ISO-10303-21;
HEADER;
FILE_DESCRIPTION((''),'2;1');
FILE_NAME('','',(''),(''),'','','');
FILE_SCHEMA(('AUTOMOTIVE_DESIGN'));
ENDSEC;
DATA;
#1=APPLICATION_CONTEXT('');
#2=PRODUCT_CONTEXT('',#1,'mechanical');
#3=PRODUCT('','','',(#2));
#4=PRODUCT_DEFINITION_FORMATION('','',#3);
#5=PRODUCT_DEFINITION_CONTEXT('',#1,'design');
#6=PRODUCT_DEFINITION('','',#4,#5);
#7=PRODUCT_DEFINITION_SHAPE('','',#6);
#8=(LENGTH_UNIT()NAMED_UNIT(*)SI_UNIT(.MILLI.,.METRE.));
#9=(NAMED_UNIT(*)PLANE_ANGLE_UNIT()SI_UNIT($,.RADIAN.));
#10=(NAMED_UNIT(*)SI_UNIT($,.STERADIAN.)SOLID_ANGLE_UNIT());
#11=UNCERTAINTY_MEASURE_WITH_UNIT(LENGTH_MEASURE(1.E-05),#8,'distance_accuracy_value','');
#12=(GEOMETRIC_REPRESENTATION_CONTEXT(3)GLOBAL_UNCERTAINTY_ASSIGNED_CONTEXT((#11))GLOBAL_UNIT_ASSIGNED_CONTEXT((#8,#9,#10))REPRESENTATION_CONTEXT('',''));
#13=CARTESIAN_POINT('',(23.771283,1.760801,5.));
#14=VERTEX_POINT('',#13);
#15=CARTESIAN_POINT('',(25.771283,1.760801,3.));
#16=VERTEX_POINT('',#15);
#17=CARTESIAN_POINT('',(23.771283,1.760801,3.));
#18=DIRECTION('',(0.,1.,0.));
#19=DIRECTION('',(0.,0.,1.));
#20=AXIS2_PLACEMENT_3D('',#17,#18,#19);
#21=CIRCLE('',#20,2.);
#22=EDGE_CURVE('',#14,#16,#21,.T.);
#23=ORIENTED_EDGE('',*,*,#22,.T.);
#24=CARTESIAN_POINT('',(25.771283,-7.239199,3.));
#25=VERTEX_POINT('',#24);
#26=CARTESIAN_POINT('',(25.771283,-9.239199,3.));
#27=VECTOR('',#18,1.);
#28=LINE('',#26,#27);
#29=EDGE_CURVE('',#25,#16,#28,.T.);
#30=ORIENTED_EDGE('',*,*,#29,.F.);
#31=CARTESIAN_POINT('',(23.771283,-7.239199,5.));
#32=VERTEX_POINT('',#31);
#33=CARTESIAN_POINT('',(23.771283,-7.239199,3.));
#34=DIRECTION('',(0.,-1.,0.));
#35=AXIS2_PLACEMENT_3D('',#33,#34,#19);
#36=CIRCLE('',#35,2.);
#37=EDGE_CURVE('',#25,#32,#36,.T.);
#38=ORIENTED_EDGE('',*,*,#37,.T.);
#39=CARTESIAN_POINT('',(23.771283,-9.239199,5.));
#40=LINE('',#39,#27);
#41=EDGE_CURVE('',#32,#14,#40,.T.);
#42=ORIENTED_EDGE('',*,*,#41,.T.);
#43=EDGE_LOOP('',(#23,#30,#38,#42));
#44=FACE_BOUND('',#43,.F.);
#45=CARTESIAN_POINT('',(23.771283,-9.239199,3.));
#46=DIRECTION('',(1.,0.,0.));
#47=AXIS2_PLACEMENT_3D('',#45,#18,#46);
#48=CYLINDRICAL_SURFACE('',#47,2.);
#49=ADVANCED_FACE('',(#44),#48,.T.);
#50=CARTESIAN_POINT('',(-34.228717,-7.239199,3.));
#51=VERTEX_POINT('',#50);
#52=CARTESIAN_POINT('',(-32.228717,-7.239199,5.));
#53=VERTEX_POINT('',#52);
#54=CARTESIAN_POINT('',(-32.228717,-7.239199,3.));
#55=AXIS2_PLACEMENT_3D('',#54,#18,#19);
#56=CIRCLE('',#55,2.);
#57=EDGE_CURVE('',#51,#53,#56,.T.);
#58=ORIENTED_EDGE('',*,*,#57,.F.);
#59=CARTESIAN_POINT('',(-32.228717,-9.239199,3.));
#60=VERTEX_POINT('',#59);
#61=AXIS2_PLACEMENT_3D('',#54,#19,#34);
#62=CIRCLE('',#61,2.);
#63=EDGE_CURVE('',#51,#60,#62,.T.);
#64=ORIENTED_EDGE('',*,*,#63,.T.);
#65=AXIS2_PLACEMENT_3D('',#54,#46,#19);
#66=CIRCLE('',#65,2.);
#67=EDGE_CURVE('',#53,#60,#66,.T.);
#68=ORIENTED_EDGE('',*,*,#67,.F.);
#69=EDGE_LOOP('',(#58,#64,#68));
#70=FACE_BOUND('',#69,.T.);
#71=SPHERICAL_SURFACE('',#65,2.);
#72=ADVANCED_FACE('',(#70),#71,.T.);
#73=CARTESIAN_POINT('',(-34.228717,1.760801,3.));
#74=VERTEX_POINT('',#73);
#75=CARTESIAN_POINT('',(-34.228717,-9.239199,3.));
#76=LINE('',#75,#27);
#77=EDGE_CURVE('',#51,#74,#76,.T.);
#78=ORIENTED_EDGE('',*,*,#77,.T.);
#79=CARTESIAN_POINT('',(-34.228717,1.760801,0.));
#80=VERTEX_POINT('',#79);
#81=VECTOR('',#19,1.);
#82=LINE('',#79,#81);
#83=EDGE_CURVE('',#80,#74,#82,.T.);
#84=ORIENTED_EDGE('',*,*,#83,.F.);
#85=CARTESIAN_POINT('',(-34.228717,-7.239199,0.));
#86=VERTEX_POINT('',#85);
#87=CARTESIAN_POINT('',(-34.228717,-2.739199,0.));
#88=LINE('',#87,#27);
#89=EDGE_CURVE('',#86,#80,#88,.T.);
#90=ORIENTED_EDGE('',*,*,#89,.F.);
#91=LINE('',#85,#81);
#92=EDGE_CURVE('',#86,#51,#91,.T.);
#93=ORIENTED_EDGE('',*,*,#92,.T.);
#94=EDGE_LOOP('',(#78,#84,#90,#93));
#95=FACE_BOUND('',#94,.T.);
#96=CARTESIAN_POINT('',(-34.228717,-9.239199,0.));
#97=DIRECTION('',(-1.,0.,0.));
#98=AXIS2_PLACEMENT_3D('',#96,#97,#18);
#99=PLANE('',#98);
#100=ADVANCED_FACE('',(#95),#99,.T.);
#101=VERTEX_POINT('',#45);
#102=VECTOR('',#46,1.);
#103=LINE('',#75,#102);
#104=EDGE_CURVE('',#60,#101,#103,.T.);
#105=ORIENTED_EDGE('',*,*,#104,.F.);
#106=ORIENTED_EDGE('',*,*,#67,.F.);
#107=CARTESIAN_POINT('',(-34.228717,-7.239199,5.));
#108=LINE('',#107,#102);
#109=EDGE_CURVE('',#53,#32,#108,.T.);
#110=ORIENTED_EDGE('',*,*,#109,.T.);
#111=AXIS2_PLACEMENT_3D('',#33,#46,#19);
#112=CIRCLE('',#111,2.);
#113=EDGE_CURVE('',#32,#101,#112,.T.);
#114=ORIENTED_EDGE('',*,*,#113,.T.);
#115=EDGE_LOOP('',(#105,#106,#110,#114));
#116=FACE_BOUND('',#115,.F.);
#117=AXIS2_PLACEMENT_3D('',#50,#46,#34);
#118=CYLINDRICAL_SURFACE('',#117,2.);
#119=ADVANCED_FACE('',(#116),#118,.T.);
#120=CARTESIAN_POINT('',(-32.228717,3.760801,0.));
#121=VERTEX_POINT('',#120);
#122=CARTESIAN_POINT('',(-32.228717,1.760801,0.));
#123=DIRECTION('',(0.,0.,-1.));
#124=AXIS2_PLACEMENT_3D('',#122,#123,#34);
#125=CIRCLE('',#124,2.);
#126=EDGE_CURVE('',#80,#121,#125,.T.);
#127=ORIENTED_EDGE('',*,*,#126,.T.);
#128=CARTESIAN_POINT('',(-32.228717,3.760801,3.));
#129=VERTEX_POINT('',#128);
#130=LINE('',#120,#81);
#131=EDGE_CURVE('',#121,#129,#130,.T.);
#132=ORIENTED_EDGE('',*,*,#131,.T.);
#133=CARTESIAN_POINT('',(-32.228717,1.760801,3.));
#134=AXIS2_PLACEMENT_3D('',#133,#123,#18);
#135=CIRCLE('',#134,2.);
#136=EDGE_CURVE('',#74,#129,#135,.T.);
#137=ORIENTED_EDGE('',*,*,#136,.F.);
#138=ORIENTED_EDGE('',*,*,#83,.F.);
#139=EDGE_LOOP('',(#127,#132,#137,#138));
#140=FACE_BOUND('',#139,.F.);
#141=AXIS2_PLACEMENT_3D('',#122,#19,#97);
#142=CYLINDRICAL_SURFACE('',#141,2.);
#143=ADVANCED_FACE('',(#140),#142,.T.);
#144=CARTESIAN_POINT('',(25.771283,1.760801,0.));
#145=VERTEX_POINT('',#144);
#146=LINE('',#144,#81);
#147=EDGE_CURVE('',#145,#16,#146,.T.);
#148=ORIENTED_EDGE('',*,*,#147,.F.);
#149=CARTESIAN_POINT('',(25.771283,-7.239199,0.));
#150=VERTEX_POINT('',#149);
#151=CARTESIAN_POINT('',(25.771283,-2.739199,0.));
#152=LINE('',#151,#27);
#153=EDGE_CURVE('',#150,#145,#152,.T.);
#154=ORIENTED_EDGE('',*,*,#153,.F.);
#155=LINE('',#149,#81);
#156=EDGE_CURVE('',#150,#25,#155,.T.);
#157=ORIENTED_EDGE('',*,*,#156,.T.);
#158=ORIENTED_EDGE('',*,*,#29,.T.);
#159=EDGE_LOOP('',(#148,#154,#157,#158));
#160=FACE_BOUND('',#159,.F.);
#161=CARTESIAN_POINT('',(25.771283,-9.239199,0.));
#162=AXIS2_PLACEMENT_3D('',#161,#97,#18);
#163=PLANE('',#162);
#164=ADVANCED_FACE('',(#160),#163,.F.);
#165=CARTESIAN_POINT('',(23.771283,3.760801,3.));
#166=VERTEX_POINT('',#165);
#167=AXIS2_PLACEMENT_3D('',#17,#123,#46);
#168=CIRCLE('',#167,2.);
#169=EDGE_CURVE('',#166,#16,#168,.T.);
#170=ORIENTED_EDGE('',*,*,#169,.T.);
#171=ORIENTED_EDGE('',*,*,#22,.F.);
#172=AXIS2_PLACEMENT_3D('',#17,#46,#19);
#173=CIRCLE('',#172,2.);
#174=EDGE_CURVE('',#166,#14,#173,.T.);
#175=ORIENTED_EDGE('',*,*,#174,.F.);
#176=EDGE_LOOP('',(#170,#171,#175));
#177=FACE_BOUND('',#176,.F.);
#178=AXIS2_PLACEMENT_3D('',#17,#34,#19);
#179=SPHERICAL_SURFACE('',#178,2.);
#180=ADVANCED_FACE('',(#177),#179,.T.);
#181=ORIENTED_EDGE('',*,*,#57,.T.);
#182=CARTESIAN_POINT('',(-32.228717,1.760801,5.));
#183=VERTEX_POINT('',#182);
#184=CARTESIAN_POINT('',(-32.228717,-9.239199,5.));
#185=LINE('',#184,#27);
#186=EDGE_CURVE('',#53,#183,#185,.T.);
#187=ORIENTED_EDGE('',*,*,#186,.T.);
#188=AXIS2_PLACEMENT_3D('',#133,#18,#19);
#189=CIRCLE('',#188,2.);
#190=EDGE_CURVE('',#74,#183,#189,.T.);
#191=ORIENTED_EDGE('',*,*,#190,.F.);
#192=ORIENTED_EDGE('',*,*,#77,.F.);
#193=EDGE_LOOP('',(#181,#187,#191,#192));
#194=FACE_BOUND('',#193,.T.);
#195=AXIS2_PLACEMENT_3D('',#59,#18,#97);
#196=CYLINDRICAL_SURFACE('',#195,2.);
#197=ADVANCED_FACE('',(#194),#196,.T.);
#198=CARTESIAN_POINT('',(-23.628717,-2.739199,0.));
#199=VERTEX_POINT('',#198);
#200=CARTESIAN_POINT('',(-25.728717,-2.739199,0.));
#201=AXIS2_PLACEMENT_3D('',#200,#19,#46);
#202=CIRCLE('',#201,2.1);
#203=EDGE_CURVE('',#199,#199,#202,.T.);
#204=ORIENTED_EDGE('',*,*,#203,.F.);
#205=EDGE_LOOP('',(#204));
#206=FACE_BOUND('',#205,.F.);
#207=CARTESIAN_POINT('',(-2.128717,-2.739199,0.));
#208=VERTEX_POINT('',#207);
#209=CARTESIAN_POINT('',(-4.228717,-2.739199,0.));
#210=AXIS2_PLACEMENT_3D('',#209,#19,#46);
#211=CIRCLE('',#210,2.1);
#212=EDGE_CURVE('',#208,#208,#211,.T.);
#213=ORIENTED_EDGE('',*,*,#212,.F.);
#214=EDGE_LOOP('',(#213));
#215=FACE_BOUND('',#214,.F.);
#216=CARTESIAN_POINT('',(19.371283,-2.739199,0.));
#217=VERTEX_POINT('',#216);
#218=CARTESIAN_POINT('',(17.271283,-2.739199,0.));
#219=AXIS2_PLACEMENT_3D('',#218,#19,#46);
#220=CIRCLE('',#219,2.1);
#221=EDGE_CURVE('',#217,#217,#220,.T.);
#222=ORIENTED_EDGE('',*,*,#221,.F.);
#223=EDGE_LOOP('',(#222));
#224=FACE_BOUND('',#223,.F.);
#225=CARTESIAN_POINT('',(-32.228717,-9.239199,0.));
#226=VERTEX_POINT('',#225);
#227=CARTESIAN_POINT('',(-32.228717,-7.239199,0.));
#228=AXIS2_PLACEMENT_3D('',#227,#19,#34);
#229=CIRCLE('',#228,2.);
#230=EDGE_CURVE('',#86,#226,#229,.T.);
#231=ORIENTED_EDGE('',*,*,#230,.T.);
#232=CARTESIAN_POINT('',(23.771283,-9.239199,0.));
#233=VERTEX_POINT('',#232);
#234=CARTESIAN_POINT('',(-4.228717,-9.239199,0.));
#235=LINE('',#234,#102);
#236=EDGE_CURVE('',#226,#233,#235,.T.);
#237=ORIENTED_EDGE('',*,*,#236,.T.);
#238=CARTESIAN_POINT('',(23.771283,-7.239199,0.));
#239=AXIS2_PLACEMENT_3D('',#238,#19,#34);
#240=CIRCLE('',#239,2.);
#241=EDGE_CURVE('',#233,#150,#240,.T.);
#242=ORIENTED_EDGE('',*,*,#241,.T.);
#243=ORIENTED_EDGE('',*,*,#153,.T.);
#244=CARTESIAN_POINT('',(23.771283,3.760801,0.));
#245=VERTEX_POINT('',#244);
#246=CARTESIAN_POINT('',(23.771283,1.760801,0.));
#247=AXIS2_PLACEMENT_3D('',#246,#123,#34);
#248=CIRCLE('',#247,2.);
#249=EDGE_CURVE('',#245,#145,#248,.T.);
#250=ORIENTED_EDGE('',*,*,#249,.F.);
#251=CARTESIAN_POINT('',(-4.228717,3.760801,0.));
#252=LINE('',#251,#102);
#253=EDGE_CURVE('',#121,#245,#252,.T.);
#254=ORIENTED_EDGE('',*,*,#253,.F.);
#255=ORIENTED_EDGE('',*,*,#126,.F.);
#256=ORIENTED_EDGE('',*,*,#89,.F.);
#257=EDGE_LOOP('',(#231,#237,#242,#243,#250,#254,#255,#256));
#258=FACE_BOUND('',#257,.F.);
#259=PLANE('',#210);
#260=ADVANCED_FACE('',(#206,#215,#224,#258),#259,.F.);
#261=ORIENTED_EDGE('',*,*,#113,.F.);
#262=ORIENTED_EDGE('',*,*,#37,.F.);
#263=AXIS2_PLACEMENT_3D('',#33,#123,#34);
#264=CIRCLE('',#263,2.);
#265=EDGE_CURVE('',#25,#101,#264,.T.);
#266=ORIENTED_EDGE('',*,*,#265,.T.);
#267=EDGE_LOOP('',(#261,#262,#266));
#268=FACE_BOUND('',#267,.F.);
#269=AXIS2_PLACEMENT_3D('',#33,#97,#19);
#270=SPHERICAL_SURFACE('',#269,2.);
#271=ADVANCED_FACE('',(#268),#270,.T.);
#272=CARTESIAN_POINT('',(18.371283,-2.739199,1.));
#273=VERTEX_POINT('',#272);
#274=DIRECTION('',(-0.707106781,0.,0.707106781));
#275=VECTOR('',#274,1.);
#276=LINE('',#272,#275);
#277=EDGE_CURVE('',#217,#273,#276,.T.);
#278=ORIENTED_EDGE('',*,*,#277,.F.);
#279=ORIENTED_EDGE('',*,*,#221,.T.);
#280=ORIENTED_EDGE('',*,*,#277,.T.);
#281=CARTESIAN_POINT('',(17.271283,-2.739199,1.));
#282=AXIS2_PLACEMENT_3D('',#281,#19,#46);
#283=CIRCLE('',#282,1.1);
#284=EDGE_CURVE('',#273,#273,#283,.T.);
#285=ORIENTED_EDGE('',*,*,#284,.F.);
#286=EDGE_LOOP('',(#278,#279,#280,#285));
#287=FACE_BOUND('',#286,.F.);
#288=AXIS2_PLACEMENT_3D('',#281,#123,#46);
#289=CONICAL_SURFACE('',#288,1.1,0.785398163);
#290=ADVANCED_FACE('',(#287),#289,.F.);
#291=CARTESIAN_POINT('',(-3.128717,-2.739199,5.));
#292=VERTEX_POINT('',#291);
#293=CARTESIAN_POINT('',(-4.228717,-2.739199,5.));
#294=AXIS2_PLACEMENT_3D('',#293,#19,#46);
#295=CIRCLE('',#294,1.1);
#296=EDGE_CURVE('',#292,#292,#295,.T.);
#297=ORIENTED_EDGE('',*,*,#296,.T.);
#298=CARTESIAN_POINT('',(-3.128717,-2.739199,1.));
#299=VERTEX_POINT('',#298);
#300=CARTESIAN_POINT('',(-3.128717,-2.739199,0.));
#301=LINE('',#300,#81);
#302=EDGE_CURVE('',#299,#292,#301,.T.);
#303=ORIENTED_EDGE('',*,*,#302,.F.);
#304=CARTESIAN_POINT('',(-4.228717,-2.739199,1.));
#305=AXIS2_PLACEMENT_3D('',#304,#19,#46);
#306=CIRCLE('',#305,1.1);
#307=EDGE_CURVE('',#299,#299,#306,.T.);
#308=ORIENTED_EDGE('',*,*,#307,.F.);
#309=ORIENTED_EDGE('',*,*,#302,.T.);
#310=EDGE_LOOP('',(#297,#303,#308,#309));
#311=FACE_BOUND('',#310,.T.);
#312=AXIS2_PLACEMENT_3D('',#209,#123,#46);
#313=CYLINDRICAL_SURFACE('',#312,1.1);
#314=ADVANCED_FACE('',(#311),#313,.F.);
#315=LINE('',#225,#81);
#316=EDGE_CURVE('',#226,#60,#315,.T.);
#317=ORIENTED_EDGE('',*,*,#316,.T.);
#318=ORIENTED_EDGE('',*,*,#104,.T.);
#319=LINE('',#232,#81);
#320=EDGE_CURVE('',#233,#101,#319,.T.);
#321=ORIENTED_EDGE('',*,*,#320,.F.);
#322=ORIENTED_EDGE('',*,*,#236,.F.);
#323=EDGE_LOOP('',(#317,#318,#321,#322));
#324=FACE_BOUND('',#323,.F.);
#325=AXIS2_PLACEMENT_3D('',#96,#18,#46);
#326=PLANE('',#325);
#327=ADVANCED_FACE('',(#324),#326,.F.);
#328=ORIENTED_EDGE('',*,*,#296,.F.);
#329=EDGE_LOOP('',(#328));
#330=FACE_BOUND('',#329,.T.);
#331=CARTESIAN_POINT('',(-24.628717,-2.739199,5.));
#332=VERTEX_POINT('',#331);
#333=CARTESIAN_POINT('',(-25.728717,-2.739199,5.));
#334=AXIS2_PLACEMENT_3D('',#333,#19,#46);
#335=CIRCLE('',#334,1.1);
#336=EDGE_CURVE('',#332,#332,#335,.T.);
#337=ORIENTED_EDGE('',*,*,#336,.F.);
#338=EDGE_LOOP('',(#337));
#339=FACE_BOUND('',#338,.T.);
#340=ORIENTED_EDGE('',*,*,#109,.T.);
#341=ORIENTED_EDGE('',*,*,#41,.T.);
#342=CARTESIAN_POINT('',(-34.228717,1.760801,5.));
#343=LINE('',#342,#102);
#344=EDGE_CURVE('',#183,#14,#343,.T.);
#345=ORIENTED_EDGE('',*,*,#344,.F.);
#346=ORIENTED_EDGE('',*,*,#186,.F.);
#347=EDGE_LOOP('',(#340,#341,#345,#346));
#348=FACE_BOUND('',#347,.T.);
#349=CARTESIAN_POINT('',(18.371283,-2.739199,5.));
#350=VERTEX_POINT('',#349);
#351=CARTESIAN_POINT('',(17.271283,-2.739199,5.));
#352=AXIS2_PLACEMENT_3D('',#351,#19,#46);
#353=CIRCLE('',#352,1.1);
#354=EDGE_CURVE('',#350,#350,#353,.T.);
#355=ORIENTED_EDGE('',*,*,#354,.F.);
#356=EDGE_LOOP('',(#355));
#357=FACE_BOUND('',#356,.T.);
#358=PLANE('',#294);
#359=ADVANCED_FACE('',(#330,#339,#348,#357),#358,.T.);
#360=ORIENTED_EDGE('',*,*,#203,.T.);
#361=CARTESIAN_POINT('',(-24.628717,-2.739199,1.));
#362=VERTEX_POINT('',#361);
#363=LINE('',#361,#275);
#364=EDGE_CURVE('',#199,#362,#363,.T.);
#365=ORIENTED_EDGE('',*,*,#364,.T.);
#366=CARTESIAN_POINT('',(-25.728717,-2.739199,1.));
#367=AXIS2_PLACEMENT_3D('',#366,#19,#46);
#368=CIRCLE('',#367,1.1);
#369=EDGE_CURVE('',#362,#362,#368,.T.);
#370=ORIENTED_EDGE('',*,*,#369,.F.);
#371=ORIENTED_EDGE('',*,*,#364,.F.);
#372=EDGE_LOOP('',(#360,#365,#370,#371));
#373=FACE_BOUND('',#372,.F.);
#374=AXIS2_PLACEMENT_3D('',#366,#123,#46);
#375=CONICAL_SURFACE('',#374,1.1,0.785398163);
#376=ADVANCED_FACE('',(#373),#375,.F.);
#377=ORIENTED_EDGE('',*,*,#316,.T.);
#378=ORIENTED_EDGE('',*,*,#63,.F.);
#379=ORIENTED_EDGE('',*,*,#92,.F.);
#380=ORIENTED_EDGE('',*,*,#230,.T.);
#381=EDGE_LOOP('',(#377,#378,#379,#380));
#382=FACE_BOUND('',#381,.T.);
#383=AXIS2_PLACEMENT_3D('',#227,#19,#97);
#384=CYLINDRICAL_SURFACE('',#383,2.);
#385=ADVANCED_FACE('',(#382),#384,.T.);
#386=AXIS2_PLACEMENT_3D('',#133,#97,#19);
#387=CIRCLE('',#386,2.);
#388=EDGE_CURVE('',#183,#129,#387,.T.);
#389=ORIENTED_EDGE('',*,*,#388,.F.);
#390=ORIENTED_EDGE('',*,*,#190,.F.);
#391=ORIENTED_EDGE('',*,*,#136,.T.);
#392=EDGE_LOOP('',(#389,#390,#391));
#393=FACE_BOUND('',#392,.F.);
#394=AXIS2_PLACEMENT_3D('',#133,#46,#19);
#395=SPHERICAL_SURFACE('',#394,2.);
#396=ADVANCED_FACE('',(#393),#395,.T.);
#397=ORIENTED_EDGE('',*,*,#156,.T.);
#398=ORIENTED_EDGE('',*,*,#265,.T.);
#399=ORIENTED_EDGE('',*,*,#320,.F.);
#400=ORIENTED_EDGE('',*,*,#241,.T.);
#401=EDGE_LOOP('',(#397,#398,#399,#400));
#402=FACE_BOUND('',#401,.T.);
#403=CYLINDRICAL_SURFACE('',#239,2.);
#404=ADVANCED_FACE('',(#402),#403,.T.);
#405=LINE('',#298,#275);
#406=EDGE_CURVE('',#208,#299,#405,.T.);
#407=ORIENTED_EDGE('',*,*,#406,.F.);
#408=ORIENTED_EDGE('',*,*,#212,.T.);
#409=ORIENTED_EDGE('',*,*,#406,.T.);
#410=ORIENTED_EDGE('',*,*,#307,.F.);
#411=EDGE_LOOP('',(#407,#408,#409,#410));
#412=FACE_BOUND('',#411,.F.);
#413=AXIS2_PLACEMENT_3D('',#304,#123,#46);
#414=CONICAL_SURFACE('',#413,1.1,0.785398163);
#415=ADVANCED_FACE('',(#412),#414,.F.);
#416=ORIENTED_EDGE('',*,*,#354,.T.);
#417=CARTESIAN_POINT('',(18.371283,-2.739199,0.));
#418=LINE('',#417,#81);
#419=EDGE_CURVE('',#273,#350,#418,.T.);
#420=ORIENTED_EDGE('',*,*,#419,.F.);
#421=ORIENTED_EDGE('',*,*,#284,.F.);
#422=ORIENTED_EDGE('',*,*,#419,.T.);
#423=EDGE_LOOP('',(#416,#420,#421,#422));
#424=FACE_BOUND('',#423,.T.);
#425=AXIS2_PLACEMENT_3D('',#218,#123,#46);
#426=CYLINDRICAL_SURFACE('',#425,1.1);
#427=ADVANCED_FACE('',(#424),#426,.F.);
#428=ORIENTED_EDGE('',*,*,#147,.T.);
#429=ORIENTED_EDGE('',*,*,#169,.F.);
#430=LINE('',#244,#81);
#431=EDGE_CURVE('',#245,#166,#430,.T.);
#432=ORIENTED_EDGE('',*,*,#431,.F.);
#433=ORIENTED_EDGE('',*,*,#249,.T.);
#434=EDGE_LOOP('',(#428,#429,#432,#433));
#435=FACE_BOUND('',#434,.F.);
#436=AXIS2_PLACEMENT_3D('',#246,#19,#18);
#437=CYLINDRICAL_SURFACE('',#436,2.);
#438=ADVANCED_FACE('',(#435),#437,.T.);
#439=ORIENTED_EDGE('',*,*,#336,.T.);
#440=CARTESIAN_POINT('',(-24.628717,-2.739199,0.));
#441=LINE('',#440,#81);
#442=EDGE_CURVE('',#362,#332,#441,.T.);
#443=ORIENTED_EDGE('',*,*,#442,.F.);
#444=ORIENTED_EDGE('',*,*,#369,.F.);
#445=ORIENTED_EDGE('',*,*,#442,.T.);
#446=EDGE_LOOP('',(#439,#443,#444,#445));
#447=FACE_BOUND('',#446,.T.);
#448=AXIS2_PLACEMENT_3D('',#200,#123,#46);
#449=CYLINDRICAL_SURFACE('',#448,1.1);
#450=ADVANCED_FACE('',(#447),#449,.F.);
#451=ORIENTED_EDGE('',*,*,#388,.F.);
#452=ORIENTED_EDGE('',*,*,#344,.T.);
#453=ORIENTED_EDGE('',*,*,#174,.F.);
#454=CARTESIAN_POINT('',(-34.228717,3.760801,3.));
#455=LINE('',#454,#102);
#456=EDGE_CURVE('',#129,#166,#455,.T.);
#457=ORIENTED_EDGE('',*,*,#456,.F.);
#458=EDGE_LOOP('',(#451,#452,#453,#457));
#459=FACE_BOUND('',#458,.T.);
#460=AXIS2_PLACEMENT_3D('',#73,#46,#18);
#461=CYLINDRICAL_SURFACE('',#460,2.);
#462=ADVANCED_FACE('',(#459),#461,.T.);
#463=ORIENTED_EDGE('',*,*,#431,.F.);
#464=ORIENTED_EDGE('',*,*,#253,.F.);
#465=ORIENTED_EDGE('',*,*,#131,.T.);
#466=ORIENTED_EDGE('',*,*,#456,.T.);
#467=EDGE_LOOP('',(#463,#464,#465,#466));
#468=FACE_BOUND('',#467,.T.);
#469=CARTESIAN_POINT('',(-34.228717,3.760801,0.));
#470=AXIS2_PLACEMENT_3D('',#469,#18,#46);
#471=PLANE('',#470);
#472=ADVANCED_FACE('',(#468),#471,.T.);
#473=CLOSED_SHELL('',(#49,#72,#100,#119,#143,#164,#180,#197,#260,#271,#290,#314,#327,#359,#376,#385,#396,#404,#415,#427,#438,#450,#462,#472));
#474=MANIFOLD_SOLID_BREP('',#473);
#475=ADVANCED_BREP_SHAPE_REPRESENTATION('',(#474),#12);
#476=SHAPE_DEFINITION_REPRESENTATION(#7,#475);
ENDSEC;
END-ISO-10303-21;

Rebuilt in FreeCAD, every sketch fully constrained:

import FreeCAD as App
import Part
import Sketcher

V = App.Vector
Q = App.Units.Quantity


def edges_at(feature, points):
    """Names of the edges that pass closest to the given points."""
    edges = feature.Shape.Edges
    near = lambda p: min(range(len(edges)), key=lambda i: edges[i].distToShape(Part.Vertex(*p))[0])
    return sorted({f"Edge{near(p) + 1}" for p in points})


def add_polygon(sketch, points):
    """Adds a closed chain of lines whose ends are joined by coincident constraints."""
    first, n = sketch.GeometryCount, len(points)
    for a, b in zip(points, points[1:] + points[:1]):
        sketch.addGeometry(Part.LineSegment(App.Vector(*a, 0), App.Vector(*b, 0)), False)
    for i in range(n):
        sketch.addConstraint(Sketcher.Constraint("Coincident", first + i, 2, first + (i + 1) % n, 1))

doc = App.newDocument("Part")
body = doc.addObject("PartDesign::Body", "Body")

# Sketch on XY plane
sketch1 = body.newObject("Sketcher::SketchObject", "Sketch")
sketch1.AttachmentSupport = (doc.getObject("XY_Plane"), [""])
sketch1.MapMode = "FlatFace"
add_polygon(sketch1, [(-34.2, 3.8), (-34.2, -9.2), (25.8, -9.2), (25.8, 3.8)])  # lines 0-3
sketch1.addGeometry(Part.Circle(V(-25.7, -2.7, 0), V(0, 0, 1), 1.1), False)  # 4
sketch1.addGeometry(Part.Circle(V(-4.2, -2.7, 0), V(0, 0, 1), 1.1), False)  # 5
sketch1.addGeometry(Part.Circle(V(17.3, -2.7, 0), V(0, 0, 1), 1.1), False)  # 6
sketch1.addConstraint(Sketcher.Constraint("Vertical", 0))
sketch1.addConstraint(Sketcher.Constraint("Horizontal", 1))
sketch1.addConstraint(Sketcher.Constraint("Vertical", 2))
sketch1.addConstraint(Sketcher.Constraint("Horizontal", 3))
sketch1.addConstraint(Sketcher.Constraint("Equal", 4, 5))
sketch1.addConstraint(Sketcher.Constraint("Equal", 5, 6))
sketch1.addConstraint(Sketcher.Constraint("Horizontal", 4, 3, 5, 3))
sketch1.addConstraint(Sketcher.Constraint("Horizontal", 5, 3, 6, 3))
sketch1.addConstraint(Sketcher.Constraint("Diameter", 4, Q("2.2 mm")))
sketch1.addConstraint(Sketcher.Constraint("DistanceX", 1, 1, 1, 2, Q("60 mm")))
sketch1.addConstraint(Sketcher.Constraint("DistanceY", 0, 2, 0, 1, Q("13 mm")))
sketch1.addConstraint(Sketcher.Constraint("DistanceX", 4, 3, 6, 3, Q("43 mm")))
sketch1.addConstraint(Sketcher.Constraint("DistanceX", 0, 2, 5, 3, Q("30 mm")))
sketch1.addConstraint(Sketcher.Constraint("DistanceX", 4, 3, 5, 3, Q("21.5 mm")))
sketch1.addConstraint(Sketcher.Constraint("DistanceY", 0, 2, 4, 3, Q("6.5 mm")))
sketch1.addConstraint(Sketcher.Constraint("DistanceY", 4, 3, -1, 1, Q("2.739199 mm")))
sketch1.addConstraint(Sketcher.Constraint("DistanceX", 4, 3, -1, 1, Q("25.728717 mm")))
pad1 = body.newObject("PartDesign::Pad", "Pad")
pad1.Profile = sketch1
pad1.Length = 5
doc.recompute()

fillet = body.newObject("PartDesign::Fillet", "Fillet")
fillet.Base = (pad1, edges_at(pad1, [
    (-4.229, -9.239, 5),
    (25.771, -2.739, 5),
    (25.771, -9.239, 2.5),
    (-4.229, 3.761, 5),
    (-34.229, -2.739, 5),
    (-34.229, -9.239, 2.5),
    (25.771, 3.761, 2.5),
    (-34.229, 3.761, 2.5),
]))
fillet.Radius = 2
doc.recompute()

chamfer = body.newObject("PartDesign::Chamfer", "Chamfer")
chamfer.Base = (fillet, edges_at(fillet, [(-5.329, -2.739, 0), (16.171, -2.739, 0), (-26.829, -2.739, 0)]))
chamfer.Size = 1

doc.recompute()
